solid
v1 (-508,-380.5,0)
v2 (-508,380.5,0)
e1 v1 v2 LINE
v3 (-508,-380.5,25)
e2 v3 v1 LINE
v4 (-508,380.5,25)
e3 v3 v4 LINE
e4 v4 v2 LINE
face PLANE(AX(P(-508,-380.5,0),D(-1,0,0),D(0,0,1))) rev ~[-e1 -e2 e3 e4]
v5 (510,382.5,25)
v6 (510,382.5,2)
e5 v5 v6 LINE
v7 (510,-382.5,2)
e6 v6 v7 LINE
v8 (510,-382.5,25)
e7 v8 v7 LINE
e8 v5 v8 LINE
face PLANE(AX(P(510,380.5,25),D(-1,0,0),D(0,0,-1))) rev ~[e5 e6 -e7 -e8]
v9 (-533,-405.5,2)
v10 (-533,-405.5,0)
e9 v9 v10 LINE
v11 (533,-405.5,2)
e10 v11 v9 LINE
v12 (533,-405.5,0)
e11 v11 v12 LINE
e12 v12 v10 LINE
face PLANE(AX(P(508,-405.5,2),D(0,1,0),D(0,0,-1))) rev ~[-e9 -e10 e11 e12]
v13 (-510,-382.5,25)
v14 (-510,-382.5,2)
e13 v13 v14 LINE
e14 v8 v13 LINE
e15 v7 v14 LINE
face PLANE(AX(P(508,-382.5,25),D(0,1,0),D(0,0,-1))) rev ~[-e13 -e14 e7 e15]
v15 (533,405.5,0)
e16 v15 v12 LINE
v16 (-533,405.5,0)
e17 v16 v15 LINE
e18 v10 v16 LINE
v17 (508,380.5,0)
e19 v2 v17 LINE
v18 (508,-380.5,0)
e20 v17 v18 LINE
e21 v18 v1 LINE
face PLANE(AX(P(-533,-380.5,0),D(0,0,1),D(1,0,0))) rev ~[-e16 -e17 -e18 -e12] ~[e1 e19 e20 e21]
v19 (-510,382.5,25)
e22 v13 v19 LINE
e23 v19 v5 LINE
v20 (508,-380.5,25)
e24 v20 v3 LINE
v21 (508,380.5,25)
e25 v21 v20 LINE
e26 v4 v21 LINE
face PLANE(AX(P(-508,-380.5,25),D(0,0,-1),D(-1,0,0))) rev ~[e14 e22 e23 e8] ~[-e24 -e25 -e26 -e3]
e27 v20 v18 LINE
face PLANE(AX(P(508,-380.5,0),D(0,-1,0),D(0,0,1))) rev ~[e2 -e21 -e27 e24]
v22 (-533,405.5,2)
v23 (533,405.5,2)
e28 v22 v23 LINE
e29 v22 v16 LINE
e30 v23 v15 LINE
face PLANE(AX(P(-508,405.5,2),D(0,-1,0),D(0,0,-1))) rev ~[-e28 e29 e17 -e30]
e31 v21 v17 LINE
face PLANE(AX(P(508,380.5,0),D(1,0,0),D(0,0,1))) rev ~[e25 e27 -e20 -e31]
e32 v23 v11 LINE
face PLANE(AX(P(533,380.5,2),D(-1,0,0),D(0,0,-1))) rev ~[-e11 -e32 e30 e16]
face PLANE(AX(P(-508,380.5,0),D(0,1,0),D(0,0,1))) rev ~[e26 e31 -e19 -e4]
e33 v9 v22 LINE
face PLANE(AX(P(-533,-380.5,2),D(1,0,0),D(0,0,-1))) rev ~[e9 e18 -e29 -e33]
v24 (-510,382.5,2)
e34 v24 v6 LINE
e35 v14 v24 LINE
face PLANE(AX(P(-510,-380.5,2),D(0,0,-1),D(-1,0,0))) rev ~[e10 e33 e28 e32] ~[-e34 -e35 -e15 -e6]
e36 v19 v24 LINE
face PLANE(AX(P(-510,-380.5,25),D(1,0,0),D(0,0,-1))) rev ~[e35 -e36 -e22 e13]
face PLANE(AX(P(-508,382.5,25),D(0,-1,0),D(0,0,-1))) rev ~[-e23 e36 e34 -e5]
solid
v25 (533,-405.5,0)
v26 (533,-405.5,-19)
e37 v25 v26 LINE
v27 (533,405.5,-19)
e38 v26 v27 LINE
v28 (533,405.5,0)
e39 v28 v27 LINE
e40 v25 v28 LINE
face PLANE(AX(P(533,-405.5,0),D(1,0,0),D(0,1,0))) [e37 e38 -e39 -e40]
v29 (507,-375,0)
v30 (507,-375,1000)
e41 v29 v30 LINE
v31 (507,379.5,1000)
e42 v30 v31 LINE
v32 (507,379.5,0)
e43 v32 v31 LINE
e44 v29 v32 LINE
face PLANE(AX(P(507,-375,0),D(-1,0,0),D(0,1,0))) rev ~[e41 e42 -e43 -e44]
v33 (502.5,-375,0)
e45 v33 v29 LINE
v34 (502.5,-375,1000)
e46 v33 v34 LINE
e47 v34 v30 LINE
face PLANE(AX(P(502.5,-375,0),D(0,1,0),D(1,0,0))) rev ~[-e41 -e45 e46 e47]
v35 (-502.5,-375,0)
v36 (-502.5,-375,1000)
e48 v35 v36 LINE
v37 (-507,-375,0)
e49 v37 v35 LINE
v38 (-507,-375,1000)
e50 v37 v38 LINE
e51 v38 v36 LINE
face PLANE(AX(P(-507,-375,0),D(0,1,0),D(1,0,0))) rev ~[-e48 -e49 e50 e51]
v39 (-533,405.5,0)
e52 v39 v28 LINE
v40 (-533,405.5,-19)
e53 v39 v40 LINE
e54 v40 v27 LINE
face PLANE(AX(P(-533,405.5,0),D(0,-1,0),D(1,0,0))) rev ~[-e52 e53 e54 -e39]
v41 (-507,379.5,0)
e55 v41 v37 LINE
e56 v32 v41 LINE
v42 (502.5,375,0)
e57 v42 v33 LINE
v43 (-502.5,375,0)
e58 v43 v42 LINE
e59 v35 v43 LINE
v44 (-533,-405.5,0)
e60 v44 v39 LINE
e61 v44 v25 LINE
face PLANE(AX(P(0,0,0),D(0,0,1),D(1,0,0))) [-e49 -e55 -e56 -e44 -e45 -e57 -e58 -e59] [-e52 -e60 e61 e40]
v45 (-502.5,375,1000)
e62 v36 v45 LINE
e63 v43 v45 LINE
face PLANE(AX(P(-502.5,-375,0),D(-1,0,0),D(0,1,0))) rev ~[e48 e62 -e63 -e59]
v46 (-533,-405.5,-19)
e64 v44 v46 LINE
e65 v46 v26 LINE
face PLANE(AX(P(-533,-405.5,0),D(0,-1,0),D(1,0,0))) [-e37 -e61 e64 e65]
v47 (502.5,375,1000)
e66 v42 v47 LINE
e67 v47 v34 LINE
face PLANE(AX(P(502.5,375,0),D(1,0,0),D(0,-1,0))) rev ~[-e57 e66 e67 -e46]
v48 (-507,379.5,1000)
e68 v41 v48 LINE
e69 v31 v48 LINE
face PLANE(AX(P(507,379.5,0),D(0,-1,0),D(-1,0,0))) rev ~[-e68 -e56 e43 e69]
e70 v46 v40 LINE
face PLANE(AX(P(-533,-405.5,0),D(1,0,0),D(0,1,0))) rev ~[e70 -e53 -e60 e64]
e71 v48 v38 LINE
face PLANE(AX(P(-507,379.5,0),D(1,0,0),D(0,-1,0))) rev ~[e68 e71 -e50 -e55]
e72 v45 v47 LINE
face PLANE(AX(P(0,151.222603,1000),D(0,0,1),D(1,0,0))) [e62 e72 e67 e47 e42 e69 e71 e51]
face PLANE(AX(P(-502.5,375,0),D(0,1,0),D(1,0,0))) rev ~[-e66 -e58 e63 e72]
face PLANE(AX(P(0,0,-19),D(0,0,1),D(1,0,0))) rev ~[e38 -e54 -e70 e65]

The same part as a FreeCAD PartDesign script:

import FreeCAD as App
import Part
import Sketcher
from FreeCAD import Vector
Q = App.Units.Quantity


def add_polygon(sketch, points):
    """Adds a closed chain of lines whose ends are joined by coincident constraints."""
    first, n = sketch.GeometryCount, len(points)
    for a, b in zip(points, points[1:] + points[:1]):
        sketch.addGeometry(Part.LineSegment(App.Vector(*a, 0), App.Vector(*b, 0)), False)
    for i in range(n):
        sketch.addConstraint(Sketcher.Constraint("Coincident", first + i, 2, first + (i + 1) % n, 1))

doc = App.newDocument("Part")
params = doc.addObject("Spreadsheet::Sheet", "Params")
for row, (alias, value) in enumerate([
    ("sketch1_width", "25 mm"),
    ("sketch1_width2", "2 mm"),
    ("sketch2_width", "1016 mm"),
    ("sketch2_height", "761 mm"),
    ("sketch3_width", "1066 mm"),
    ("sketch3_height", "811 mm"),
    ("pad1_length", "19 mm"),
    ("sketch4_width", "1005 mm"),
    ("sketch4_width2", "1014 mm"),
    ("sketch4_height", "750 mm"),
    ("sketch4_height2", "754.5 mm"),
    ("pad2_length", "1000 mm"),
], start=1):
    params.set(f"A{row}", alias)
    params.set(f"B{row}", "=" + value)
    params.setAlias(f"B{row}", alias)

body = doc.addObject("PartDesign::Body", "Body")

# Sketch on XZ plane
sketch1 = doc.addObject("Sketcher::SketchObject", "Sketch")
body.addObject(sketch1)
sketch1.AttachmentSupport = (doc.XZ_Plane, [""])
sketch1.MapMode = "FlatFace"
add_polygon(sketch1, [(-533, 2), (-533, 0), (-508, 0), (-508, 25), (-510, 25), (-510, 2)])  # lines 0-5
sketch1.addConstraint([
    Sketcher.Constraint("Vertical", 0),
    Sketcher.Constraint("Horizontal", 1),
    Sketcher.Constraint("Vertical", 2),
    Sketcher.Constraint("Horizontal", 3),
    Sketcher.Constraint("Vertical", 4),
    Sketcher.Constraint("Horizontal", 5),
    Sketcher.Constraint("PointOnObject", 0, 2, -1),
    Sketcher.Constraint("Equal", 3, 0),
    Sketcher.Constraint("Equal", 1, 2),
    Sketcher.Constraint("DistanceX", 1, 1, 1, 2, Q("25 mm")),
    Sketcher.Constraint("DistanceX", 3, 2, 3, 1, Q("2 mm")),
    Sketcher.Constraint("DistanceX", 0, 2, -1, 1, Q("533 mm")),
])
sketch1.setExpression("Constraints[15]", "Params.sketch1_width")
sketch1.setExpression("Constraints[16]", "Params.sketch1_width2")

# Sketch on XY plane
sketch2 = doc.addObject("Sketcher::SketchObject", "Sketch001")
body.addObject(sketch2)
sketch2.AttachmentSupport = (doc.XY_Plane, [""])
sketch2.MapMode = "FlatFace"
add_polygon(sketch2, [(-508, -380), (-508, 380), (508, 380), (508, -380)])  # lines 0-3
sketch2.addConstraint([
    Sketcher.Constraint("Vertical", 0),
    Sketcher.Constraint("Horizontal", 1),
    Sketcher.Constraint("Vertical", 2),
    Sketcher.Constraint("Horizontal", 3),
    Sketcher.Constraint("Symmetric", 0, 2, 2, 2, -1, 1),
    Sketcher.Constraint("DistanceX", 1, 1, 1, 2, Q("1016 mm")),
    Sketcher.Constraint("DistanceY", 0, 1, 0, 2, Q("761 mm")),
])
sketch2.setExpression("Constraints[9]", "Params.sketch2_width")
sketch2.setExpression("Constraints[10]", "Params.sketch2_height")
doc.recompute()

additivepipe = doc.addObject("PartDesign::AdditivePipe", "AdditivePipe")
body.addObject(additivepipe)
additivepipe.Profile = sketch1
additivepipe.Spine = (sketch2, ["Edge1", "Edge2", "Edge3", "Edge4"])
additivepipe.Transition = "Right corner"
body2 = doc.addObject("PartDesign::Body", "Body001")

# Sketch on XY plane
sketch3 = doc.addObject("Sketcher::SketchObject", "Sketch002")
body2.addObject(sketch3)
sketch3.AttachmentSupport = (doc.getObject("XY_Plane001"), [""])
sketch3.MapMode = "FlatFace"
add_polygon(sketch3, [(-533, 406), (-533, -406), (533, -406), (533, 406)])  # lines 0-3
sketch3.addConstraint([
    Sketcher.Constraint("Vertical", 0),
    Sketcher.Constraint("Horizontal", 1),
    Sketcher.Constraint("Vertical", 2),
    Sketcher.Constraint("Horizontal", 3),
    Sketcher.Constraint("Symmetric", 0, 2, 2, 2, -1, 1),
    Sketcher.Constraint("DistanceX", 1, 1, 1, 2, Q("1066 mm")),
    Sketcher.Constraint("DistanceY", 0, 2, 0, 1, Q("811 mm")),
])
sketch3.setExpression("Constraints[9]", "Params.sketch3_width")
sketch3.setExpression("Constraints[10]", "Params.sketch3_height")
pad1 = doc.addObject("PartDesign::Pad", "Pad")
body2.addObject(pad1)
pad1.Profile = sketch3
pad1.setExpression("Length", "Params.pad1_length")
pad1.Reversed = True

# Sketch on XY plane
sketch4 = doc.addObject("Sketcher::SketchObject", "Sketch003")
body2.addObject(sketch4)
sketch4.AttachmentSupport = (doc.getObject("XY_Plane001"), [""])
sketch4.MapMode = "FlatFace"
add_polygon(sketch4, [(-502.5, -375), (-502.5, 375), (502.5, 375), (502.5, -375), (507, -375), (507, 379.5), (-507, 379.5), (-507, -375)])  # lines 0-7
sketch4.addConstraint([
    Sketcher.Constraint("Vertical", 0),
    Sketcher.Constraint("Horizontal", 1),
    Sketcher.Constraint("Vertical", 2),
    Sketcher.Constraint("Horizontal", 3),
    Sketcher.Constraint("Vertical", 4),
    Sketcher.Constraint("Horizontal", 5),
    Sketcher.Constraint("Vertical", 6),
    Sketcher.Constraint("Horizontal", 7),
    Sketcher.Constraint("Symmetric", 0, 2, 2, 2, -1, 1),
    Sketcher.Constraint("Symmetric", 3, 2, 6, 2, -2),
    Sketcher.Constraint("DistanceX", 1, 1, 1, 2, Q("1005 mm")),
    Sketcher.Constraint("DistanceX", 5, 2, 5, 1, Q("1014 mm")),
    Sketcher.Constraint("DistanceY", 0, 1, 0, 2, Q("750 mm")),
    Sketcher.Constraint("DistanceY", 4, 1, 4, 2, Q("754.5 mm")),
])
sketch4.setExpression("Constraints[18]", "Params.sketch4_width")
sketch4.setExpression("Constraints[19]", "Params.sketch4_width2")
sketch4.setExpression("Constraints[20]", "Params.sketch4_height")
sketch4.setExpression("Constraints[21]", "Params.sketch4_height2")
pad2 = doc.addObject("PartDesign::Pad", "Pad001")
body2.addObject(pad2)
pad2.Profile = sketch4
pad2.setExpression("Length", "Params.pad2_length")

doc.recompute()
